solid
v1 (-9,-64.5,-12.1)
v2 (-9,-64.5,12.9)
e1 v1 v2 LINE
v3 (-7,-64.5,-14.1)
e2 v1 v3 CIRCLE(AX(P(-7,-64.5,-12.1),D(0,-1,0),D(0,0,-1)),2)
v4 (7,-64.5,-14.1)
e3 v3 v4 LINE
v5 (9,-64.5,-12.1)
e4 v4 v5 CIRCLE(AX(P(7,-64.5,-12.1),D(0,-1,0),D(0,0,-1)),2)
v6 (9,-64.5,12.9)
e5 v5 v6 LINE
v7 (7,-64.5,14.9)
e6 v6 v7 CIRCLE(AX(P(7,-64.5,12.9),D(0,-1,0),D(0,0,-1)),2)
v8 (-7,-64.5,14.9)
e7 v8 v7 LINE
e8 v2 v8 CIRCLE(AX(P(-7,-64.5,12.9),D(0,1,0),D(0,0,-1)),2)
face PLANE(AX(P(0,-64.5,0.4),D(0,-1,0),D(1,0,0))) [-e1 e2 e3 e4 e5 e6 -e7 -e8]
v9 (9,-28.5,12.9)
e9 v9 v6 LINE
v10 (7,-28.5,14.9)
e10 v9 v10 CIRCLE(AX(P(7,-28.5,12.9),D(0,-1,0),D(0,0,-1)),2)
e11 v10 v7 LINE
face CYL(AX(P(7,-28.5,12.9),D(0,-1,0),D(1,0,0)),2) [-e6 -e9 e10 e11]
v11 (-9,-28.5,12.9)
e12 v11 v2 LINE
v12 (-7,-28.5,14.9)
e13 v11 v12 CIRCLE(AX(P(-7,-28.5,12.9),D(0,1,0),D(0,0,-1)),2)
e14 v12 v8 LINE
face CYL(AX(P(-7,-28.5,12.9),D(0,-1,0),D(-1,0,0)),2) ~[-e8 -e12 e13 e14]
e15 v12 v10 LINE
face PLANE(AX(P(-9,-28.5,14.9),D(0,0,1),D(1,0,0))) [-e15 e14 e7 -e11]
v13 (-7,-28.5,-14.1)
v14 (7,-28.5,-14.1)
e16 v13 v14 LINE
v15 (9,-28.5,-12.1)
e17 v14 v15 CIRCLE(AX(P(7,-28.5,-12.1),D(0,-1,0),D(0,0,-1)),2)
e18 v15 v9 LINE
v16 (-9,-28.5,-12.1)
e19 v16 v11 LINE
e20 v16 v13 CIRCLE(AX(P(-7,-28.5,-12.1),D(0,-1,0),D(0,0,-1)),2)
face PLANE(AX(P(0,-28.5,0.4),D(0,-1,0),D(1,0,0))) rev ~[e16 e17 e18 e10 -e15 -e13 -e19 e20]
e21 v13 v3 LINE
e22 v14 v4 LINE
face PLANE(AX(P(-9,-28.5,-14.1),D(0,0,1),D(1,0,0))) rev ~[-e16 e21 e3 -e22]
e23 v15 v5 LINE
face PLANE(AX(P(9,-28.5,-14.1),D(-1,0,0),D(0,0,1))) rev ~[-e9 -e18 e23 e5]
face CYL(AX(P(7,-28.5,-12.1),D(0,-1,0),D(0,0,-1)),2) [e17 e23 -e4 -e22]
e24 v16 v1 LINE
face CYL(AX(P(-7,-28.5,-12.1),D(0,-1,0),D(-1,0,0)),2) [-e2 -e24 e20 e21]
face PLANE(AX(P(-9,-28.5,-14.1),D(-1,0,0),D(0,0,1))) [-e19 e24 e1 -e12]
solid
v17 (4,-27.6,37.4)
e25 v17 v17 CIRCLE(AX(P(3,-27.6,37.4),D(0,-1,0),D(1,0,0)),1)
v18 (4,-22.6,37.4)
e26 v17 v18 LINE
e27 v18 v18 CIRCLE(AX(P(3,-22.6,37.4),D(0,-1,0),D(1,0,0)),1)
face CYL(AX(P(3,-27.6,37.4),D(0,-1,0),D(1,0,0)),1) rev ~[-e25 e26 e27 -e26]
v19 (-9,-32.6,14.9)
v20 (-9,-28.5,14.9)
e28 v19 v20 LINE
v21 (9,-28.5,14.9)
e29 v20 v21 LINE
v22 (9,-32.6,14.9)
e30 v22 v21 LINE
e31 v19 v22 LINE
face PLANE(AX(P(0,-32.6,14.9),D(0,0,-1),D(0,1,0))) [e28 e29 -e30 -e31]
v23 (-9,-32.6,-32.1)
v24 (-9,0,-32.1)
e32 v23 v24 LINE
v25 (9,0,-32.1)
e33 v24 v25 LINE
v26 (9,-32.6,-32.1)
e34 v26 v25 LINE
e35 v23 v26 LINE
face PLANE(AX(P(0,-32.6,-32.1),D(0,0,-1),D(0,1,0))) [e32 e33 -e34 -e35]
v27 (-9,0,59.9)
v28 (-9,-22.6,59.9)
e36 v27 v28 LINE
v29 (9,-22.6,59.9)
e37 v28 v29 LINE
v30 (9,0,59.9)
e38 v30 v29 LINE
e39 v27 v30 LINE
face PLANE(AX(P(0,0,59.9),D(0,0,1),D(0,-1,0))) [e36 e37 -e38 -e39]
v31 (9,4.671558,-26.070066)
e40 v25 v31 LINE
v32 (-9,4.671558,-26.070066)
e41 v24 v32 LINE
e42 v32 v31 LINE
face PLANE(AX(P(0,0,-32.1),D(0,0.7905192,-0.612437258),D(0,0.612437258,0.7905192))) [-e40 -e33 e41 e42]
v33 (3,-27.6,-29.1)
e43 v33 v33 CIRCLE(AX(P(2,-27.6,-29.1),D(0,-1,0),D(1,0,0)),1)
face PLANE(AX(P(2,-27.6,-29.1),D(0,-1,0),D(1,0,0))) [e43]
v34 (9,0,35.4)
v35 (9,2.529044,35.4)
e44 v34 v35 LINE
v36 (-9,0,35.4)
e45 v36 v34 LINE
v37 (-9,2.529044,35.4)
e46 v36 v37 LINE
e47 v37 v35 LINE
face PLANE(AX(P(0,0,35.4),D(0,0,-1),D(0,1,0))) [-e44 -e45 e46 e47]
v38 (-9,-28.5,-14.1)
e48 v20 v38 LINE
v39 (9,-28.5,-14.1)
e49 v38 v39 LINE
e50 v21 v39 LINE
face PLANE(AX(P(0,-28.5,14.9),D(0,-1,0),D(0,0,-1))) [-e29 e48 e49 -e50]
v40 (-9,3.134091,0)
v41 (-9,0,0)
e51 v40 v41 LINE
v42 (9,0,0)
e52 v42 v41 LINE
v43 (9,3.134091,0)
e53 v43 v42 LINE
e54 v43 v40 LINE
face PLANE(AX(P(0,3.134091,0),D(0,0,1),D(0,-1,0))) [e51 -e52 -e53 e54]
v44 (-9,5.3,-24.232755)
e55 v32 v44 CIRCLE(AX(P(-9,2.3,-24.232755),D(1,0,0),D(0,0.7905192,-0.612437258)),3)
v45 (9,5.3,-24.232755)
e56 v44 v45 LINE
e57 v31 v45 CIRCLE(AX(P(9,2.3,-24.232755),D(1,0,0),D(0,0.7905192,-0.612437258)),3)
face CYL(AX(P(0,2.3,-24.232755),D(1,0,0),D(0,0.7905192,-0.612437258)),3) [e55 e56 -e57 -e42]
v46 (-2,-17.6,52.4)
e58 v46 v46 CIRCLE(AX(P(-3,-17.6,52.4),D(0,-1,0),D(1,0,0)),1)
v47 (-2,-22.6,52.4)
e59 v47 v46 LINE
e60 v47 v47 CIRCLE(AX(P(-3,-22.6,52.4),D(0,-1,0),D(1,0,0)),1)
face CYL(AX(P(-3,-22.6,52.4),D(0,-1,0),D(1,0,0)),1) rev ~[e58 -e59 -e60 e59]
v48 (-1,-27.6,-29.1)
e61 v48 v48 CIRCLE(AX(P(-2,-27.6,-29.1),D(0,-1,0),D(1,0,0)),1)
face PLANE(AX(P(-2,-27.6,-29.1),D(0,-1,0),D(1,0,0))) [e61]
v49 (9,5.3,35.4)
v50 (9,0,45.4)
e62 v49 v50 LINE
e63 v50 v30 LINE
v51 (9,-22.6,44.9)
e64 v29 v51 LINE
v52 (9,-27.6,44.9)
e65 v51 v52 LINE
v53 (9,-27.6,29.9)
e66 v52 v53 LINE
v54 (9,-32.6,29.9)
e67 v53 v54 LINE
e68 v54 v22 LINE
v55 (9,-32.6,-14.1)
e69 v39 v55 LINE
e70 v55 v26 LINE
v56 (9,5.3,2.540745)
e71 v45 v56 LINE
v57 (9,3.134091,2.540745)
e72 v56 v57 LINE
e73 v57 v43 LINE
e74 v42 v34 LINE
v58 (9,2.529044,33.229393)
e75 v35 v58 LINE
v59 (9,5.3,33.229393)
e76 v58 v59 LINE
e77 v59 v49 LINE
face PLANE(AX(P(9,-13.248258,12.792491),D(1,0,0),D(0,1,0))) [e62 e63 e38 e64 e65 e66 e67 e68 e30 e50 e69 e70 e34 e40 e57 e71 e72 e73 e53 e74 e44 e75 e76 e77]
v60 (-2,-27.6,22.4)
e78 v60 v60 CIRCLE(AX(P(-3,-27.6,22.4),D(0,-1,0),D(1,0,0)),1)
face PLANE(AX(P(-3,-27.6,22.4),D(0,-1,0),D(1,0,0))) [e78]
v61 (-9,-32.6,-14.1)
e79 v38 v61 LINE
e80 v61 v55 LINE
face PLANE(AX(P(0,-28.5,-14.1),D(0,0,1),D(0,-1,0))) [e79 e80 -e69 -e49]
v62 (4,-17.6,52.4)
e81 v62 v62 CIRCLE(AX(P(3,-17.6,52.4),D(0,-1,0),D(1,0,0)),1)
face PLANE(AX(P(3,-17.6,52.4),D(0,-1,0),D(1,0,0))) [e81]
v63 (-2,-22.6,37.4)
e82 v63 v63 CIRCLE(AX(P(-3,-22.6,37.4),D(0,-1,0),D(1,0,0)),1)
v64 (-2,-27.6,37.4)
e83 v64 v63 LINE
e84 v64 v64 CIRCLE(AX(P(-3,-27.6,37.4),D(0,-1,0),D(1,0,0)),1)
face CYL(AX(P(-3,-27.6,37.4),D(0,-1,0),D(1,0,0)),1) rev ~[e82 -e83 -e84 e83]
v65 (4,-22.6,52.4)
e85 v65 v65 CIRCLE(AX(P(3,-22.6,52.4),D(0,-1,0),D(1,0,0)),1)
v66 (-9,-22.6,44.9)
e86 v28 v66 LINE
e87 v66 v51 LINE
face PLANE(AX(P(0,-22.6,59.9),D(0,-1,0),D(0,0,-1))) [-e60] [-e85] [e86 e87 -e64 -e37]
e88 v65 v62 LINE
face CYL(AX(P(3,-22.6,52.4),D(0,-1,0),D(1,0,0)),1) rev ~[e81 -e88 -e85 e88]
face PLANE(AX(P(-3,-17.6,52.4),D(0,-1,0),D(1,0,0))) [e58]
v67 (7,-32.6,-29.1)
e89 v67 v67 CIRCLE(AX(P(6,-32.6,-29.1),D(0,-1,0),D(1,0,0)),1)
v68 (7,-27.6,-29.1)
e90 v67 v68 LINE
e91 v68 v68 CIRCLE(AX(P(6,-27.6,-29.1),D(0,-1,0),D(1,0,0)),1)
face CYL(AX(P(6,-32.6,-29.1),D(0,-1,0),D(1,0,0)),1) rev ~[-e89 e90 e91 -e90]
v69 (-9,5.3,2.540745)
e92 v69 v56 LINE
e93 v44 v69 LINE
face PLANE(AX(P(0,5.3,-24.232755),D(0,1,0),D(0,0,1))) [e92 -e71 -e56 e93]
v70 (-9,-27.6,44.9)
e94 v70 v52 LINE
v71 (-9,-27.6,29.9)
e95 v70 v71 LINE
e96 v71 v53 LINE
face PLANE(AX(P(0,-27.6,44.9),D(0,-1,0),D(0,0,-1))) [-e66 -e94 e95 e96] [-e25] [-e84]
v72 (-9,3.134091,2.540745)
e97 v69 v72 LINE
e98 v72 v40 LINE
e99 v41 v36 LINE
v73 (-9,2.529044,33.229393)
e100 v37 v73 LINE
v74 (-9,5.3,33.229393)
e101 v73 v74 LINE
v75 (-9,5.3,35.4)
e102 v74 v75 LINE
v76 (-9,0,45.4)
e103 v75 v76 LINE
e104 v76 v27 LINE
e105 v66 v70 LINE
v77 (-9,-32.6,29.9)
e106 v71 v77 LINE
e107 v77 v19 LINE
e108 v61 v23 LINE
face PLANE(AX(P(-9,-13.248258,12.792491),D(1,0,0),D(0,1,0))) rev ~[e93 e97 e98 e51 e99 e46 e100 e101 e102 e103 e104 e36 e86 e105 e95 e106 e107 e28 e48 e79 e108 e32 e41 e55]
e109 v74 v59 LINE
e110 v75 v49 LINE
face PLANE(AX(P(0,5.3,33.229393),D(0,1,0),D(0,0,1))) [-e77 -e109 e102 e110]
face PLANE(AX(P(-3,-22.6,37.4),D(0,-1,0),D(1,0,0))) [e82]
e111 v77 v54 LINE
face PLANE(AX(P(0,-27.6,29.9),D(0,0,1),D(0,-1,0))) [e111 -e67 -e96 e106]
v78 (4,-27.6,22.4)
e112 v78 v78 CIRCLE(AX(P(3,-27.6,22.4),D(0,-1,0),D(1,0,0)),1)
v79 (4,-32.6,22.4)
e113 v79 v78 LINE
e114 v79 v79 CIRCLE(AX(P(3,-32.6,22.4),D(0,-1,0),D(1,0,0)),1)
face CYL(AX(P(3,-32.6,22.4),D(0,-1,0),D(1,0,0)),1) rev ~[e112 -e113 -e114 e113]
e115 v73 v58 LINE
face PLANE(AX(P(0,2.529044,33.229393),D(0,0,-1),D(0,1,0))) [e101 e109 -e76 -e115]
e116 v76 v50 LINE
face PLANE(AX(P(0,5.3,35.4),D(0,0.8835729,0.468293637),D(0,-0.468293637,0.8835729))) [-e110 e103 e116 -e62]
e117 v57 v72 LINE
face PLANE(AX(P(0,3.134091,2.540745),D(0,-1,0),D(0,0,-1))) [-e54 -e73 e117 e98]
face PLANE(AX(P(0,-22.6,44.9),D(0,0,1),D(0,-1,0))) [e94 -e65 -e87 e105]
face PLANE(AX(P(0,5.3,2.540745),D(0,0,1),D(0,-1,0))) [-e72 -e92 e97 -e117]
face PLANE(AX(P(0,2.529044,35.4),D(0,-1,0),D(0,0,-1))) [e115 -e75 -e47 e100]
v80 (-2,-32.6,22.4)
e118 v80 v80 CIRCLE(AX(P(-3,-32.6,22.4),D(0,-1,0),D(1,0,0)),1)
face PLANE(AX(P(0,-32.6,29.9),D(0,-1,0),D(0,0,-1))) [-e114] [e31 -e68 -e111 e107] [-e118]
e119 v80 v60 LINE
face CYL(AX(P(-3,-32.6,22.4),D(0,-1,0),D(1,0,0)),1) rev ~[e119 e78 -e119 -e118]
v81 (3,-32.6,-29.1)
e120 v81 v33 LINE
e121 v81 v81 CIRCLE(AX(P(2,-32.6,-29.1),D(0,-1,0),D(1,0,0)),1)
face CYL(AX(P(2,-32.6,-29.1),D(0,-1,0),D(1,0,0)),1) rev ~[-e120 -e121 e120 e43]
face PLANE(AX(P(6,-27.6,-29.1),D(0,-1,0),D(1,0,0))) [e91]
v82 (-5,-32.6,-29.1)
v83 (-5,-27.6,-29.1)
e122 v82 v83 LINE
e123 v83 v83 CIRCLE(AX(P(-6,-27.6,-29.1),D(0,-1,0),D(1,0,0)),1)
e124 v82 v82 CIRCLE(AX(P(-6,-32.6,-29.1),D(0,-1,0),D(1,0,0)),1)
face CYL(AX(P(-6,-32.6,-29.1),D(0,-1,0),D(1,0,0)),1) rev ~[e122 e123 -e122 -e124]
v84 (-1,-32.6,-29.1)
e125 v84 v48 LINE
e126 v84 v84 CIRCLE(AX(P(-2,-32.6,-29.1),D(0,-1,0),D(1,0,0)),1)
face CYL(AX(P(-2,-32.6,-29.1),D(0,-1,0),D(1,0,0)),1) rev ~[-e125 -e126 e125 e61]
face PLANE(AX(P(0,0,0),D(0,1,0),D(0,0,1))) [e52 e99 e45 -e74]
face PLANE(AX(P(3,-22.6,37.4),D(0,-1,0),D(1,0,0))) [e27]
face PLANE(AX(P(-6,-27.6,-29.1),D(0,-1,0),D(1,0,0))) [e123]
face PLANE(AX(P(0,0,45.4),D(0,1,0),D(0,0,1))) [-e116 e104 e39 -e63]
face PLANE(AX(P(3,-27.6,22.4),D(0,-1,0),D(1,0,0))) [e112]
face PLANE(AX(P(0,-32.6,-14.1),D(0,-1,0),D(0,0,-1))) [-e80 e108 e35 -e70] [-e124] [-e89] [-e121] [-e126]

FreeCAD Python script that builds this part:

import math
import FreeCAD as App
import Part
import Sketcher
Q = App.Units.Quantity


def edges_at(feature, points):
    """Names of the edges that pass closest to the given points."""
    edges = feature.Shape.Edges
    near = lambda p: min(range(len(edges)), key=lambda i: edges[i].distToShape(Part.Vertex(*p))[0])
    return sorted({f"Edge{near(p) + 1}" for p in points})

doc = App.newDocument("Part")
body = doc.addObject("PartDesign::Body", "Body")

# Sketch on YZ plane
sketch1 = body.newObject("Sketcher::SketchObject", "Sketch")
sketch1.AttachmentSupport = (doc.getObject("YZ_Plane"), [""])
sketch1.MapMode = "FlatFace"
sketch1.addGeometry([
    Part.LineSegment(App.Vector(0, 0, 0), App.Vector(0, 35.4, 0)),  # 0
    Part.LineSegment(App.Vector(0, 35.4, 0), App.Vector(2.5, 35.4, 0)),  # 1
    Part.LineSegment(App.Vector(2.5, 35.4, 0), App.Vector(2.5, 33.2, 0)),  # 2
    Part.LineSegment(App.Vector(2.5, 33.2, 0), App.Vector(5.3, 33.2, 0)),  # 3
    Part.LineSegment(App.Vector(5.3, 33.2, 0), App.Vector(5.3, 35.4, 0)),  # 4
    Part.LineSegment(App.Vector(5.3, 35.4, 0), App.Vector(0, 45.4, 0)),  # 5
    Part.LineSegment(App.Vector(0, 45.4, 0), App.Vector(0, 59.9, 0)),  # 6
    Part.LineSegment(App.Vector(0, 59.9, 0), App.Vector(-22.6, 59.9, 0)),  # 7
    Part.LineSegment(App.Vector(-22.6, 59.9, 0), App.Vector(-22.6, 44.9, 0)),  # 8
    Part.LineSegment(App.Vector(-22.6, 44.9, 0), App.Vector(-27.6, 44.9, 0)),  # 9
    Part.LineSegment(App.Vector(-27.6, 44.9, 0), App.Vector(-27.6, 29.9, 0)),  # 10
    Part.LineSegment(App.Vector(-27.6, 29.9, 0), App.Vector(-32.6, 29.9, 0)),  # 11
    Part.LineSegment(App.Vector(-32.6, 29.9, 0), App.Vector(-32.6, 14.9, 0)),  # 12
    Part.LineSegment(App.Vector(-32.6, 14.9, 0), App.Vector(-28.5, 14.9, 0)),  # 13
    Part.LineSegment(App.Vector(-28.5, 14.9, 0), App.Vector(-28.5, -14.1, 0)),  # 14
    Part.LineSegment(App.Vector(-28.5, -14.1, 0), App.Vector(-32.6, -14.1, 0)),  # 15
    Part.LineSegment(App.Vector(-32.6, -14.1, 0), App.Vector(-32.6, -32.1, 0)),  # 16
    Part.LineSegment(App.Vector(-32.6, -32.1, 0), App.Vector(0, -32.1, 0)),  # 17
    Part.LineSegment(App.Vector(0, -32.1, 0), App.Vector(4.7, -26.1, 0)),  # 18
    Part.ArcOfCircle(Part.Circle(App.Vector(2.3, -24.2, 0), App.Vector(0, 0, 1), 3), math.radians(-38), math.radians(0)),  # 19
    Part.LineSegment(App.Vector(5.3, -24.2, 0), App.Vector(5.3, 2.5, 0)),  # 20
    Part.LineSegment(App.Vector(5.3, 2.5, 0), App.Vector(3.1, 2.5, 0)),  # 21
    Part.LineSegment(App.Vector(3.1, 2.5, 0), App.Vector(3.1, 0, 0)),  # 22
    Part.LineSegment(App.Vector(3.1, 0, 0), App.Vector(0, 0, 0)),  # 23
], False)
sketch1.addConstraint([
    Sketcher.Constraint("Coincident", 0, 2, 1, 1),
    Sketcher.Constraint("Coincident", 1, 2, 2, 1),
    Sketcher.Constraint("Coincident", 2, 2, 3, 1),
    Sketcher.Constraint("Coincident", 3, 2, 4, 1),
    Sketcher.Constraint("Coincident", 4, 2, 5, 1),
    Sketcher.Constraint("Coincident", 5, 2, 6, 1),
    Sketcher.Constraint("Coincident", 6, 2, 7, 1),
    Sketcher.Constraint("Coincident", 7, 2, 8, 1),
    Sketcher.Constraint("Coincident", 8, 2, 9, 1),
    Sketcher.Constraint("Coincident", 9, 2, 10, 1),
    Sketcher.Constraint("Coincident", 10, 2, 11, 1),
    Sketcher.Constraint("Coincident", 11, 2, 12, 1),
    Sketcher.Constraint("Coincident", 12, 2, 13, 1),
    Sketcher.Constraint("Coincident", 13, 2, 14, 1),
    Sketcher.Constraint("Coincident", 14, 2, 15, 1),
    Sketcher.Constraint("Coincident", 15, 2, 16, 1),
    Sketcher.Constraint("Coincident", 16, 2, 17, 1),
    Sketcher.Constraint("Coincident", 17, 2, 18, 1),
    Sketcher.Constraint("Tangent", 18, 2, 19, 1),
    Sketcher.Constraint("Tangent", 19, 2, 20, 1),
    Sketcher.Constraint("Coincident", 20, 2, 21, 1),
    Sketcher.Constraint("Coincident", 21, 2, 22, 1),
    Sketcher.Constraint("Coincident", 22, 2, 23, 1),
    Sketcher.Constraint("Coincident", 23, 2, 0, 1),
    Sketcher.Constraint("Vertical", 0),
    Sketcher.Constraint("Horizontal", 1),
    Sketcher.Constraint("Vertical", 2),
    Sketcher.Constraint("Horizontal", 3),
    Sketcher.Constraint("Vertical", 4),
    Sketcher.Constraint("Vertical", 6),
    Sketcher.Constraint("Horizontal", 7),
    Sketcher.Constraint("Vertical", 8),
    Sketcher.Constraint("Horizontal", 9),
    Sketcher.Constraint("Vertical", 10),
    Sketcher.Constraint("Horizontal", 11),
    Sketcher.Constraint("Vertical", 12),
    Sketcher.Constraint("Horizontal", 13),
    Sketcher.Constraint("Vertical", 14),
    Sketcher.Constraint("Horizontal", 15),
    Sketcher.Constraint("Vertical", 16),
    Sketcher.Constraint("Horizontal", 17),
    Sketcher.Constraint("Vertical", 20),
    Sketcher.Constraint("Horizontal", 21),
    Sketcher.Constraint("Vertical", 22),
    Sketcher.Constraint("Horizontal", 23),
    Sketcher.Constraint("Coincident", 23, 2, -1, 1),
    Sketcher.Constraint("PointOnObject", 5, 2, -2),
    Sketcher.Constraint("PointOnObject", 17, 2, -2),
    Sketcher.Constraint("Horizontal", 1, 2, 4, 2),
    Sketcher.Constraint("Vertical", 12, 2, 15, 2),
    Sketcher.Constraint("Vertical", 4, 2, 19, 2),
    Sketcher.Constraint("Equal", 9, 11),
    Sketcher.Constraint("Equal", 8, 10),
    Sketcher.Constraint("Equal", 10, 12),
    Sketcher.Constraint("Radius", 19, Q("3 mm")),
    Sketcher.Constraint("DistanceX", 9, 2, 9, 1, Q("5 mm")),
    Sketcher.Constraint("DistanceY", 8, 2, 8, 1, Q("15 mm")),
    Sketcher.Constraint("DistanceY", 14, 2, 14, 1, Q("29 mm")),
    Sketcher.Constraint("DistanceY", 16, 2, 16, 1, Q("18 mm")),
    Sketcher.Constraint("DistanceX", 7, 2, 7, 1, Q("22.6 mm")),
    Sketcher.Constraint("DistanceX", 13, 1, 13, 2, Q("4.1 mm")),
    Sketcher.Constraint("DistanceY", 0, 1, 0, 2, Q("35.4 mm")),
    Sketcher.Constraint("DistanceY", 6, 1, 6, 2, Q("14.5 mm")),
    Sketcher.Constraint("DistanceY", 0, 2, 5, 2, Q("10 mm")),
    Sketcher.Constraint("DistanceX", -1, 1, 19, 3, Q("2.3 mm")),
    Sketcher.Constraint("DistanceY", 20, 1, 20, 2, Q("26.7735 mm")),
    Sketcher.Constraint("DistanceX", 21, 2, 21, 1, Q("2.165909 mm")),
    Sketcher.Constraint("DistanceX", 1, 1, 1, 2, Q("2.529044 mm")),
    Sketcher.Constraint("DistanceY", 2, 2, 2, 1, Q("2.170607 mm")),
    Sketcher.Constraint("DistanceY", 22, 2, 22, 1, Q("2.540745 mm")),
])
pad1 = body.newObject("PartDesign::Pad", "Pad")
pad1.Profile = sketch1
pad1.Length = 18
pad1.Midplane = True

# Sketch on XZ plane
sketch2 = body.newObject("Sketcher::SketchObject", "Sketch001")
sketch2.AttachmentSupport = (doc.getObject("XZ_Plane"), [""])
sketch2.MapMode = "FlatFace"
sketch2.AttachmentOffset = App.Placement(App.Vector(0, 0, 22.6), App.Rotation())
sketch2.addGeometry([
    Part.Circle(App.Vector(-3, 52.4, 0), App.Vector(0, 0, 1), 1),
    Part.Circle(App.Vector(3, 52.4, 0), App.Vector(0, 0, 1), 1),
], False)
sketch2.addConstraint([
    Sketcher.Constraint("Equal", 0, 1),
    Sketcher.Constraint("Symmetric", 0, 3, 1, 3, -2),
    Sketcher.Constraint("Diameter", 0, Q("2 mm")),
    Sketcher.Constraint("DistanceX", 0, 3, -1, 1, Q("3 mm")),
    Sketcher.Constraint("DistanceY", -1, 1, 0, 3, Q("52.4 mm")),
])
pocket1 = body.newObject("PartDesign::Pocket", "Pocket")
pocket1.Profile = sketch2
pocket1.Length = 5

# Sketch on XZ plane
sketch3 = body.newObject("Sketcher::SketchObject", "Sketch002")
sketch3.AttachmentSupport = (doc.getObject("XZ_Plane"), [""])
sketch3.MapMode = "FlatFace"
sketch3.AttachmentOffset = App.Placement(App.Vector(0, 0, 27.6), App.Rotation())
sketch3.addGeometry([
    Part.Circle(App.Vector(-3, 37.4, 0), App.Vector(0, 0, 1), 1),
    Part.Circle(App.Vector(3, 37.4, 0), App.Vector(0, 0, 1), 1),
], False)
sketch3.addConstraint([
    Sketcher.Constraint("Equal", 0, 1),
    Sketcher.Constraint("Symmetric", 0, 3, 1, 3, -2),
    Sketcher.Constraint("Diameter", 0, Q("2 mm")),
    Sketcher.Constraint("DistanceX", 0, 3, -1, 1, Q("3 mm")),
    Sketcher.Constraint("DistanceY", -1, 1, 0, 3, Q("37.4 mm")),
])
pocket2 = body.newObject("PartDesign::Pocket", "Pocket001")
pocket2.Profile = sketch3
pocket2.Length = 5

# Sketch on XZ plane
sketch4 = body.newObject("Sketcher::SketchObject", "Sketch003")
sketch4.AttachmentSupport = (doc.getObject("XZ_Plane"), [""])
sketch4.MapMode = "FlatFace"
sketch4.AttachmentOffset = App.Placement(App.Vector(0, 0, 32.6), App.Rotation())
sketch4.addGeometry([
    Part.Circle(App.Vector(-3, 22.4, 0), App.Vector(0, 0, 1), 1),
    Part.Circle(App.Vector(3, 22.4, 0), App.Vector(0, 0, 1), 1),
], False)
sketch4.addConstraint([
    Sketcher.Constraint("Equal", 0, 1),
    Sketcher.Constraint("Symmetric", 0, 3, 1, 3, -2),
    Sketcher.Constraint("Diameter", 0, Q("2 mm")),
    Sketcher.Constraint("DistanceX", 0, 3, -1, 1, Q("3 mm")),
    Sketcher.Constraint("DistanceY", -1, 1, 0, 3, Q("22.4 mm")),
])
pocket3 = body.newObject("PartDesign::Pocket", "Pocket002")
pocket3.Profile = sketch4
pocket3.Length = 5

# Sketch on XZ plane
sketch5 = body.newObject("Sketcher::SketchObject", "Sketch004")
sketch5.AttachmentSupport = (doc.getObject("XZ_Plane"), [""])
sketch5.MapMode = "FlatFace"
sketch5.AttachmentOffset = App.Placement(App.Vector(0, 0, 32.6), App.Rotation())
sketch5.addGeometry([
    Part.Circle(App.Vector(-6, -29.1, 0), App.Vector(0, 0, 1), 1),
    Part.Circle(App.Vector(-2, -29.1, 0), App.Vector(0, 0, 1), 1),
    Part.Circle(App.Vector(2, -29.1, 0), App.Vector(0, 0, 1), 1),
    Part.Circle(App.Vector(6, -29.1, 0), App.Vector(0, 0, 1), 1),
], False)
sketch5.addConstraint([
    Sketcher.Constraint("Equal", 0, 1),
    Sketcher.Constraint("Equal", 1, 2),
    Sketcher.Constraint("Equal", 2, 3),
    Sketcher.Constraint("Symmetric", 1, 3, 2, 3, -2),
    Sketcher.Constraint("Symmetric", 0, 3, 3, 3, -2),
    Sketcher.Constraint("Horizontal", 0, 3, 1, 3),
    Sketcher.Constraint("Diameter", 0, Q("2 mm")),
    Sketcher.Constraint("DistanceX", 0, 3, -1, 1, Q("6 mm")),
    Sketcher.Constraint("DistanceX", 1, 3, -1, 1, Q("2 mm")),
    Sketcher.Constraint("DistanceY", 0, 3, -1, 1, Q("29.1 mm")),
])
pocket4 = body.newObject("PartDesign::Pocket", "Pocket003")
pocket4.Profile = sketch5
pocket4.Length = 5
body2 = doc.addObject("PartDesign::Body", "Body001")

# Sketch on XZ plane
sketch6 = body2.newObject("Sketcher::SketchObject", "Sketch005")
sketch6.AttachmentSupport = (doc.getObject("XZ_Plane001"), [""])
sketch6.MapMode = "FlatFace"
sketch6.AttachmentOffset = App.Placement(App.Vector(0, 0, 28.5), App.Rotation())
sketch6.addGeometry([
    Part.LineSegment(App.Vector(-9, 15, 0), App.Vector(-9, -14, 0)),
    Part.LineSegment(App.Vector(-9, -14, 0), App.Vector(9, -14, 0)),
    Part.LineSegment(App.Vector(9, -14, 0), App.Vector(9, 15, 0)),
    Part.LineSegment(App.Vector(9, 15, 0), App.Vector(-9, 15, 0)),
], False)
sketch6.addConstraint([
    Sketcher.Constraint("Coincident", 0, 2, 1, 1),
    Sketcher.Constraint("Coincident", 1, 2, 2, 1),
    Sketcher.Constraint("Coincident", 2, 2, 3, 1),
    Sketcher.Constraint("Coincident", 3, 2, 0, 1),
    Sketcher.Constraint("Vertical", 0),
    Sketcher.Constraint("Horizontal", 1),
    Sketcher.Constraint("Vertical", 2),
    Sketcher.Constraint("Horizontal", 3),
    Sketcher.Constraint("DistanceX", 1, 1, 1, 2, Q("18 mm")),
    Sketcher.Constraint("DistanceY", 0, 2, 0, 1, Q("29 mm")),
    Sketcher.Constraint("DistanceX", 0, 2, -1, 1, Q("9 mm")),
    Sketcher.Constraint("DistanceY", 0, 2, -1, 1, Q("14.1 mm")),
])
pad2 = body2.newObject("PartDesign::Pad", "Pad001")
pad2.Profile = sketch6
pad2.Length = 36
doc.recompute()

fillet = body2.newObject("PartDesign::Fillet", "Fillet")
fillet.Base = (pad2, edges_at(pad2, [
    (9, -46.5, 14.9),
    (9, -46.5, -14.1),
    (-9, -46.5, -14.1),
    (-9, -46.5, 14.9),
]))
fillet.Radius = 2

doc.recompute()
